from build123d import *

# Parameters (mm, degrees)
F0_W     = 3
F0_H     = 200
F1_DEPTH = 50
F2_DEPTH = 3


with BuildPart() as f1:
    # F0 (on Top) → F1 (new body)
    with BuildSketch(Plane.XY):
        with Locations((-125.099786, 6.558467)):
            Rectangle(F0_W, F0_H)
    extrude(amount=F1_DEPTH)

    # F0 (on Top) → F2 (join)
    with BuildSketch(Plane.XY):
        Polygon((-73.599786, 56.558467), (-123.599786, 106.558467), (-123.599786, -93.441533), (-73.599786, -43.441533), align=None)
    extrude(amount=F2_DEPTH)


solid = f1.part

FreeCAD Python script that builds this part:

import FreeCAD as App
import Part
import Sketcher
from FreeCAD import Vector
Q = App.Units.Quantity

doc = App.newDocument("Part")
body = doc.addObject("PartDesign::Body", "Body")

# Sketch on XY plane
sketch1 = body.newObject("Sketcher::SketchObject", "Sketch")
sketch1.AttachmentSupport = (doc.getObject("XY_Plane"), [""])
sketch1.MapMode = "FlatFace"
sketch1.addGeometry([
    Part.LineSegment(Vector(-126.599786, 106.558467, 0), Vector(-126.599786, -93.441533, 0)),
    Part.LineSegment(Vector(-126.599786, -93.441533, 0), Vector(-123.599786, -93.441533, 0)),
    Part.LineSegment(Vector(-123.599786, -93.441533, 0), Vector(-123.599786, 106.558467, 0)),
    Part.LineSegment(Vector(-123.599786, 106.558467, 0), Vector(-126.599786, 106.558467, 0)),
], False)
sketch1.addConstraint([
    Sketcher.Constraint("Coincident", 0, 2, 1, 1),
    Sketcher.Constraint("Coincident", 1, 2, 2, 1),
    Sketcher.Constraint("Coincident", 2, 2, 3, 1),
    Sketcher.Constraint("Coincident", 3, 2, 0, 1),
    Sketcher.Constraint("Vertical", 0),
    Sketcher.Constraint("Horizontal", 1),
    Sketcher.Constraint("Vertical", 2),
    Sketcher.Constraint("Horizontal", 3),
    Sketcher.Constraint("DistanceX", 1, 1, 1, 2, Q("3 mm")),
    Sketcher.Constraint("DistanceY", 0, 2, 0, 1, Q("200 mm")),
    Sketcher.Constraint("DistanceX", 0, 2, -1, 1, Q("126.599786 mm")),
    Sketcher.Constraint("DistanceY", 0, 2, -1, 1, Q("93.441533 mm")),
])
pad1 = body.newObject("PartDesign::Pad", "Pad")
pad1.Profile = sketch1
pad1.Length = 50

# Sketch on XY plane
sketch2 = body.newObject("Sketcher::SketchObject", "Sketch001")
sketch2.AttachmentSupport = (doc.getObject("XY_Plane"), [""])
sketch2.MapMode = "FlatFace"
sketch2.addGeometry([
    Part.LineSegment(Vector(-73.599786, 56.558467, 0), Vector(-123.599786, 106.558467, 0)),
    Part.LineSegment(Vector(-123.599786, 106.558467, 0), Vector(-123.599786, -93.441533, 0)),
    Part.LineSegment(Vector(-123.599786, -93.441533, 0), Vector(-73.599786, -43.441533, 0)),
    Part.LineSegment(Vector(-73.599786, -43.441533, 0), Vector(-73.599786, 56.558467, 0)),
], False)
sketch2.addConstraint([
    Sketcher.Constraint("Coincident", 0, 2, 1, 1),
    Sketcher.Constraint("Coincident", 1, 2, 2, 1),
    Sketcher.Constraint("Coincident", 2, 2, 3, 1),
    Sketcher.Constraint("Coincident", 3, 2, 0, 1),
    Sketcher.Constraint("Vertical", 1),
    Sketcher.Constraint("Vertical", 3),
    Sketcher.Constraint("Perpendicular", 0, 2),
    Sketcher.Constraint("Equal", 0, 2),
    Sketcher.Constraint("DistanceY", 1, 2, 1, 1, Q("200 mm")),
    Sketcher.Constraint("DistanceY", 3, 1, 3, 2, Q("100 mm")),
    Sketcher.Constraint("DistanceX", 0, 2, -1, 1, Q("123.599786 mm")),
    Sketcher.Constraint("DistanceY", -1, 1, 0, 2, Q("106.558467 mm")),
])
pad2 = body.newObject("PartDesign::Pad", "Pad001")
pad2.Profile = sketch2
pad2.Length = 3

doc.recompute()
